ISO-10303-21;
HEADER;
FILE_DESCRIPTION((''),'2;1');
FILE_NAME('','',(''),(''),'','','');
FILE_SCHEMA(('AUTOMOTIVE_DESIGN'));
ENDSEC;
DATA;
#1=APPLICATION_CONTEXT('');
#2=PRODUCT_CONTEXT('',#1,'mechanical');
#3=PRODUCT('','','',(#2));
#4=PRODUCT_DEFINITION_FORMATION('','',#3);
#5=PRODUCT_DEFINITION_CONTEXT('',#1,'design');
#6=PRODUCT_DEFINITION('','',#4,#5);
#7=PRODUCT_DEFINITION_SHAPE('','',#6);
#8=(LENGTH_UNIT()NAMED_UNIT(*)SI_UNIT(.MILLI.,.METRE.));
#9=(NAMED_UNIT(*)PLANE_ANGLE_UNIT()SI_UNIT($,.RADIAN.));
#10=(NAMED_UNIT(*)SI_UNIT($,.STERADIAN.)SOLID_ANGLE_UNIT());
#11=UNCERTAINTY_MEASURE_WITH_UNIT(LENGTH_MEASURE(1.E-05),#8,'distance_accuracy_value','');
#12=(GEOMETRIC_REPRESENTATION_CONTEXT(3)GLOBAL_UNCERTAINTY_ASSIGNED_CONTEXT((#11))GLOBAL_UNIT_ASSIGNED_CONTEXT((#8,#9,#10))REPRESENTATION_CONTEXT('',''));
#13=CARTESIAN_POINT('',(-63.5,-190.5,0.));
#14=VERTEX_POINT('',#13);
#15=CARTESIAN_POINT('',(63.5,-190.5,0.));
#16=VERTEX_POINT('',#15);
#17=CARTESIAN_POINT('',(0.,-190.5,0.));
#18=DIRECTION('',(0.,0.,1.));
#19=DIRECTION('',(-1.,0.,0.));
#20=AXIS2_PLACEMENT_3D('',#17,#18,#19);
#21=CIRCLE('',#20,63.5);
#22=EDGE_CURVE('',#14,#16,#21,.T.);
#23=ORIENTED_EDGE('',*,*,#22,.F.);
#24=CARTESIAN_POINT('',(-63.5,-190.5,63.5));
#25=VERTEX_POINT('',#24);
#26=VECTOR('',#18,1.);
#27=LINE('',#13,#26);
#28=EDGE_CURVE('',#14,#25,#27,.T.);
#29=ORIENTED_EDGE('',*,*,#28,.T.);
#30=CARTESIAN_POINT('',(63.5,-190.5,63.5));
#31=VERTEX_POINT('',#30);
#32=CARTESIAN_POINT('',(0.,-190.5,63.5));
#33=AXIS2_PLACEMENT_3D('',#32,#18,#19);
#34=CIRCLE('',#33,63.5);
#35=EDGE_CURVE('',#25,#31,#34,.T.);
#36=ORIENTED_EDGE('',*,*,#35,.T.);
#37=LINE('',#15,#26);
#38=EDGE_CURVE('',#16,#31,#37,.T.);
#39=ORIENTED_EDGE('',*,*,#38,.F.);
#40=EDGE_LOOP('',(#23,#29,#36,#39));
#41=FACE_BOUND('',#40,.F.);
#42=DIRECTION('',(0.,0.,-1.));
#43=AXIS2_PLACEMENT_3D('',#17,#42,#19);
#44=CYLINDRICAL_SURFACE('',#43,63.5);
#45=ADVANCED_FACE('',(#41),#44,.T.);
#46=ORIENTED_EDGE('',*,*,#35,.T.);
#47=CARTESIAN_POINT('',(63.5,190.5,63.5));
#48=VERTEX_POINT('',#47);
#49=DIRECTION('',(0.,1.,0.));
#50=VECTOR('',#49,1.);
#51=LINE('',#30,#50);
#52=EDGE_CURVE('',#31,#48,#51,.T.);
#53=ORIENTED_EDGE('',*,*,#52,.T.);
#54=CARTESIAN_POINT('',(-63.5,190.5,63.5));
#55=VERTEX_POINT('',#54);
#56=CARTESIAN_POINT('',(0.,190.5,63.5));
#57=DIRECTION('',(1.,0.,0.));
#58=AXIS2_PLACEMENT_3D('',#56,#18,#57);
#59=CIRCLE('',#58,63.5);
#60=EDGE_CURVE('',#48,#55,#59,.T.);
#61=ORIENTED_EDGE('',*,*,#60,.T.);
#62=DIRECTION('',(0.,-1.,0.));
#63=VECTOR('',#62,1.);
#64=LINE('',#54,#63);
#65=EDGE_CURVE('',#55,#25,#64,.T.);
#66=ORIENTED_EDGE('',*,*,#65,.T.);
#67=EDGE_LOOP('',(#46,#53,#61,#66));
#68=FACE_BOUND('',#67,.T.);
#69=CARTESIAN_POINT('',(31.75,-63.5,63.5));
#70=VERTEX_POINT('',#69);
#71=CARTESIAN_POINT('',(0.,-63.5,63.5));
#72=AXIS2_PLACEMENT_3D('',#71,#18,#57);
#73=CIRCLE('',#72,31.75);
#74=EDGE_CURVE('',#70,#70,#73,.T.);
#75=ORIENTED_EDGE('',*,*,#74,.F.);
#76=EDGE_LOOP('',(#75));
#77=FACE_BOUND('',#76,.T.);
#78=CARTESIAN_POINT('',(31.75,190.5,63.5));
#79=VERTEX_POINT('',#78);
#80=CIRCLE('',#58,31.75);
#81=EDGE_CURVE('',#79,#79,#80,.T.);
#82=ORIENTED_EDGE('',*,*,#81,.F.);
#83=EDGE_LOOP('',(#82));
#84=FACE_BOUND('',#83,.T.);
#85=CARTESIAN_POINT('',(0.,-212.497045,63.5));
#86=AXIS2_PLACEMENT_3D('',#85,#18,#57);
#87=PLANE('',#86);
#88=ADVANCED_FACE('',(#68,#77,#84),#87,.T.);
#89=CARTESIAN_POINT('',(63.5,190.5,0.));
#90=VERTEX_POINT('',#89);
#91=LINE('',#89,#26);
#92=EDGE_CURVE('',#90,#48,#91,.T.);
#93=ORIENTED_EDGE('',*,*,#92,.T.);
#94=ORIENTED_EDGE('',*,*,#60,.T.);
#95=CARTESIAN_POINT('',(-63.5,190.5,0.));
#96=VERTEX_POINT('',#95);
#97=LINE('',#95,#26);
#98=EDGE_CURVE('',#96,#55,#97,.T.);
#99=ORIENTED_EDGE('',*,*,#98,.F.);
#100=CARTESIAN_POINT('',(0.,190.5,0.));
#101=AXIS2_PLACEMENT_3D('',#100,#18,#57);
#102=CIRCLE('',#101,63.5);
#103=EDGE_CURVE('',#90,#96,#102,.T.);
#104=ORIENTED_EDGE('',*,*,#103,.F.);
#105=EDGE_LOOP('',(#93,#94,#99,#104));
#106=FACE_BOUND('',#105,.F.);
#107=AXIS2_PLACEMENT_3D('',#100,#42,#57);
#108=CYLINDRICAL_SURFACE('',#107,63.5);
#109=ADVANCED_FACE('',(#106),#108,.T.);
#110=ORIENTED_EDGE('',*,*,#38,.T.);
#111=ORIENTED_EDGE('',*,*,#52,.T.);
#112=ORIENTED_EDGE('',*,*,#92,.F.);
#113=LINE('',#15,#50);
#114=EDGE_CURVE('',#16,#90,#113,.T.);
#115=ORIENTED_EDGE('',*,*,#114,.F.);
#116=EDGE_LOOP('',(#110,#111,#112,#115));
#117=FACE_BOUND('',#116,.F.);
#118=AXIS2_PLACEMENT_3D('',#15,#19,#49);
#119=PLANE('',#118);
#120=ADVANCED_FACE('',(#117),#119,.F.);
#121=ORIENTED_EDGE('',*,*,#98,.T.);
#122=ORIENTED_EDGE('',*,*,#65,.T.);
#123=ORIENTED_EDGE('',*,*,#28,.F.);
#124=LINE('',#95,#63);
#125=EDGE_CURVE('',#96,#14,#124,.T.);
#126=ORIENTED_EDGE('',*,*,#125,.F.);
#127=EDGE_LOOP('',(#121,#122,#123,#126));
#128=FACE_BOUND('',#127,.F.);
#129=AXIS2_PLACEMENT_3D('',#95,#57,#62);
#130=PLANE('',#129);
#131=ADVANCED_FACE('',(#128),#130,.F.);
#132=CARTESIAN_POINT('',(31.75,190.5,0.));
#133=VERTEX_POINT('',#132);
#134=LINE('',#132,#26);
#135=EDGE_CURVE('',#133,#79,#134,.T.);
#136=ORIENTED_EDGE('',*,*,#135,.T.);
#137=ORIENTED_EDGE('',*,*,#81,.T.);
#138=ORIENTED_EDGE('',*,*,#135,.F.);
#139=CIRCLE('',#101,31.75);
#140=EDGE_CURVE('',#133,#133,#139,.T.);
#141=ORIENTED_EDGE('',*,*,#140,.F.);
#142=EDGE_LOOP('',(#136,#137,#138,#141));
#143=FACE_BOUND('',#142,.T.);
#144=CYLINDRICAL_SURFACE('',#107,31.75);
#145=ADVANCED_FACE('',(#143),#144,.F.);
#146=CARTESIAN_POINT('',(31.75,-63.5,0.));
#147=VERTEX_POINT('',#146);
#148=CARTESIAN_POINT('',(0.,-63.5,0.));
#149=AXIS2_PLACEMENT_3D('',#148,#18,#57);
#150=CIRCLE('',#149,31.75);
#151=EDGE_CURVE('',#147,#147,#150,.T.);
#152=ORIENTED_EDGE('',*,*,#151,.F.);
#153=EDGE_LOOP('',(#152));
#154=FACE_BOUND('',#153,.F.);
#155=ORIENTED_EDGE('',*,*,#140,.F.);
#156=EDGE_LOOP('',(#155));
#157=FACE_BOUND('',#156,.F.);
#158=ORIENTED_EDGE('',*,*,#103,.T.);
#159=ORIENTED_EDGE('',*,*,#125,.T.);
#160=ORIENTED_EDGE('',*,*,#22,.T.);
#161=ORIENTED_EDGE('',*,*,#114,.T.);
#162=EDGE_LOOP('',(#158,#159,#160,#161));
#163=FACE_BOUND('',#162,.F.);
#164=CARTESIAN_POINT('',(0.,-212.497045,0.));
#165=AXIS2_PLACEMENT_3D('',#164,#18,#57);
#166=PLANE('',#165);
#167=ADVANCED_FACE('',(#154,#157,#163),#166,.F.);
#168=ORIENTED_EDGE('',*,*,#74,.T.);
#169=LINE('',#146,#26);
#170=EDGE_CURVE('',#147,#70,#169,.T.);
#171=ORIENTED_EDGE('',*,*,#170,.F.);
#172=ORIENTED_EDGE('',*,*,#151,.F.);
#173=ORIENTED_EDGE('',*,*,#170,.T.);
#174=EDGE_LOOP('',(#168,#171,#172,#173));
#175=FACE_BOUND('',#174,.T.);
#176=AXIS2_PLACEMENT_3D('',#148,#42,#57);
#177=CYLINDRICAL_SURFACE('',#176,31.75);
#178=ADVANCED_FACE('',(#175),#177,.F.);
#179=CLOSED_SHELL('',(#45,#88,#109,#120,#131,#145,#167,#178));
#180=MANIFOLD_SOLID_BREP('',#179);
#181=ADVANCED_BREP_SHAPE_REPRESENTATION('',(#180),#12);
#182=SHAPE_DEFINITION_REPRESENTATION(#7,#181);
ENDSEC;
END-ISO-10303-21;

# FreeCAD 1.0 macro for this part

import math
import FreeCAD as App
import Part
import Sketcher
from FreeCAD import Vector
Q = App.Units.Quantity

doc = App.newDocument("Part")
body = doc.addObject("PartDesign::Body", "Body")

sketch1 = body.newObject("Sketcher::SketchObject", "Sketch")
sketch1.AttachmentSupport = (doc.getObject("XY_Plane"), [""])
sketch1.MapMode = "FlatFace"
sketch1.addGeometry([
    Part.ArcOfCircle(Part.Circle(Vector(0, -190, 0), Vector(0, 0, 1), 64), math.radians(180), math.radians(360)),
    Part.LineSegment(Vector(64, -190, 0), Vector(64, 190, 0)),
    Part.ArcOfCircle(Part.Circle(Vector(0, 190, 0), Vector(0, 0, 1), 64), math.radians(0), math.radians(180)),
    Part.LineSegment(Vector(-64, 190, 0), Vector(-64, -190, 0)),
], False)
sketch1.addConstraint([
    Sketcher.Constraint("Tangent", 0, 2, 1, 1),
    Sketcher.Constraint("Tangent", 1, 2, 2, 1),
    Sketcher.Constraint("Tangent", 2, 2, 3, 1),
    Sketcher.Constraint("Tangent", 3, 2, 0, 1),
    Sketcher.Constraint("Vertical", 1),
    Sketcher.Constraint("Vertical", 3),
    Sketcher.Constraint("Symmetric", 0, 3, 2, 3, -1, 1),
    Sketcher.Constraint("Radius", 0, Q("2.5 in")),
    Sketcher.Constraint("DistanceY", 1, 1, 1, 2, Q("15 in")),
])
pad1 = body.newObject("PartDesign::Pad", "Pad")
pad1.Profile = sketch1
pad1.Length = Q("2.5 in")

sketch2 = body.newObject("Sketcher::SketchObject", "Sketch001")
sketch2.AttachmentSupport = (doc.getObject("XY_Plane"), [""])
sketch2.MapMode = "FlatFace"
sketch2.addGeometry([
    Part.Circle(Vector(0, 190, 0), Vector(0, 0, 1), 32),
    Part.Circle(Vector(0, -64, 0), Vector(0, 0, 1), 32),
], False)
sketch2.addConstraint([
    Sketcher.Constraint("Equal", 0, 1),
    Sketcher.Constraint("PointOnObject", 0, 3, -2),
    Sketcher.Constraint("PointOnObject", 1, 3, -2),
    Sketcher.Constraint("Diameter", 0, Q("2.5 in")),
    Sketcher.Constraint("DistanceY", 1, 3, 0, 3, Q("10 in")),
    Sketcher.Constraint("DistanceY", -1, 1, 0, 3, Q("7.5 in")),
])
pocket1 = body.newObject("PartDesign::Pocket", "Pocket")
pocket1.Profile = sketch2
pocket1.Type = "ThroughAll"
pocket1.Reversed = True

doc.recompute()
